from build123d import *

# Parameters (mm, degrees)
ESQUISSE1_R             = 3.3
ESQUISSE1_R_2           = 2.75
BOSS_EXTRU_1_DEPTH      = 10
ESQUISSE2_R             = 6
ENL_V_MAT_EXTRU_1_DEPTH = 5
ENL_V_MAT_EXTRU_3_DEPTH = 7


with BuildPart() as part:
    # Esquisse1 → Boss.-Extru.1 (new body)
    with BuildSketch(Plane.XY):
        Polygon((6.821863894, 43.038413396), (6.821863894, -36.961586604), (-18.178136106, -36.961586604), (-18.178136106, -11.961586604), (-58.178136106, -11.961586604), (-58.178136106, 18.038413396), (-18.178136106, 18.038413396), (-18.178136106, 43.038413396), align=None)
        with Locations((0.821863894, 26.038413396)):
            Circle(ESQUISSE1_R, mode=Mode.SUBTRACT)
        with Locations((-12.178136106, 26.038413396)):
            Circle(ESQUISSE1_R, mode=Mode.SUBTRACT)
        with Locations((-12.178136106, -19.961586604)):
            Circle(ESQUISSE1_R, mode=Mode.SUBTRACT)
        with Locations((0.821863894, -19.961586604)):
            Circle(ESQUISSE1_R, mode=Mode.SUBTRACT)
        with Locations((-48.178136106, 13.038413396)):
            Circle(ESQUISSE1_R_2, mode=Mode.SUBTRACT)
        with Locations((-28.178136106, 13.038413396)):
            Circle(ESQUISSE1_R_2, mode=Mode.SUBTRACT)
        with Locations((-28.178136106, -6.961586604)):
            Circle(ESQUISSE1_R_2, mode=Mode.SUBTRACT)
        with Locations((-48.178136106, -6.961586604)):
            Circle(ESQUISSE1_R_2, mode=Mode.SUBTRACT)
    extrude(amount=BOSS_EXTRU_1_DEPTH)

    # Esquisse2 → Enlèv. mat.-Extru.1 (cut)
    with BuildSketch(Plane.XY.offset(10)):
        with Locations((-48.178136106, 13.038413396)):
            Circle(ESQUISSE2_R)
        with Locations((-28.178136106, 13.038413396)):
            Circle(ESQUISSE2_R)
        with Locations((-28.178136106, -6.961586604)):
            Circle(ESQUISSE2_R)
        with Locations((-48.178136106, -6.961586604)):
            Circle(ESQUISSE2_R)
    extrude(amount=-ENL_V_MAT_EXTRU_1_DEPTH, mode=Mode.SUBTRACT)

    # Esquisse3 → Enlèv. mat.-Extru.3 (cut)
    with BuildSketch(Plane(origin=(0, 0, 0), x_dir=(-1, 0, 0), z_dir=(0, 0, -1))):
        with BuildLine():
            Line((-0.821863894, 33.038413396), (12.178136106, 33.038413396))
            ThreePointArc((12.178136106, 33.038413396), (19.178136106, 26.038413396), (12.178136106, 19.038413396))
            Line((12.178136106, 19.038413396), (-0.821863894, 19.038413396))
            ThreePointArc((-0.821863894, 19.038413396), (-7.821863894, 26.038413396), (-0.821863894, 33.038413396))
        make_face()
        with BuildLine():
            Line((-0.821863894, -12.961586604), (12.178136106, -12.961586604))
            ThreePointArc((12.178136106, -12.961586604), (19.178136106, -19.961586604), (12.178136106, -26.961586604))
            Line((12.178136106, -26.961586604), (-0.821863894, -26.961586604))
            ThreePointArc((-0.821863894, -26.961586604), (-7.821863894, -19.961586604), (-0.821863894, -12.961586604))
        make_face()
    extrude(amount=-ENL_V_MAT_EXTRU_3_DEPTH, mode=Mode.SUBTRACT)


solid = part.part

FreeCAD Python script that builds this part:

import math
import FreeCAD as App
import Part
import Sketcher
Q = App.Units.Quantity


def add_polygon(sketch, points):
    """Adds a closed chain of lines whose ends are joined by coincident constraints."""
    first, n = sketch.GeometryCount, len(points)
    for a, b in zip(points, points[1:] + points[:1]):
        sketch.addGeometry(Part.LineSegment(App.Vector(*a, 0), App.Vector(*b, 0)), False)
    for i in range(n):
        sketch.addConstraint(Sketcher.Constraint("Coincident", first + i, 2, first + (i + 1) % n, 1))

doc = App.newDocument("Part")
body = doc.addObject("PartDesign::Body", "Body")

# Sketch on XY plane
sketch1 = body.newObject("Sketcher::SketchObject", "Sketch")
sketch1.AttachmentSupport = (doc.getObject("XY_Plane"), [""])
sketch1.MapMode = "FlatFace"
add_polygon(sketch1, [(6.821864, -36.961587), (6.821864, 43.038413), (-18.178136, 43.038413), (-18.178136, 18.038413), (-58.178136, 18.038413), (-58.178136, -11.961587), (-18.178136, -11.961587), (-18.178136, -36.961587)])  # lines 0-7
sketch1.addGeometry(Part.Circle(App.Vector(0.821864, -19.961587, 0), App.Vector(0, 0, 1), 3.3), False)  # 8
sketch1.addGeometry(Part.Circle(App.Vector(-12.178136, -19.961587, 0), App.Vector(0, 0, 1), 3.3), False)  # 9
sketch1.addGeometry(Part.Circle(App.Vector(-28.178136, -6.961587, 0), App.Vector(0, 0, 1), 2.75), False)  # 10
sketch1.addGeometry(Part.Circle(App.Vector(-48.178136, -6.961587, 0), App.Vector(0, 0, 1), 2.75), False)  # 11
sketch1.addGeometry(Part.Circle(App.Vector(0.821864, 26.038413, 0), App.Vector(0, 0, 1), 3.3), False)  # 12
sketch1.addGeometry(Part.Circle(App.Vector(-12.178136, 26.038413, 0), App.Vector(0, 0, 1), 3.3), False)  # 13
sketch1.addGeometry(Part.Circle(App.Vector(-28.178136, 13.038413, 0), App.Vector(0, 0, 1), 2.75), False)  # 14
sketch1.addGeometry(Part.Circle(App.Vector(-48.178136, 13.038413, 0), App.Vector(0, 0, 1), 2.75), False)  # 15
sketch1.addConstraint(Sketcher.Constraint("Vertical", 0))
sketch1.addConstraint(Sketcher.Constraint("Horizontal", 1))
sketch1.addConstraint(Sketcher.Constraint("Vertical", 2))
sketch1.addConstraint(Sketcher.Constraint("Horizontal", 3))
sketch1.addConstraint(Sketcher.Constraint("Vertical", 4))
sketch1.addConstraint(Sketcher.Constraint("Horizontal", 5))
sketch1.addConstraint(Sketcher.Constraint("Vertical", 6))
sketch1.addConstraint(Sketcher.Constraint("Horizontal", 7))
sketch1.addConstraint(Sketcher.Constraint("Equal", 8, 9))
sketch1.addConstraint(Sketcher.Constraint("Equal", 10, 11))
sketch1.addConstraint(Sketcher.Constraint("Equal", 9, 12))
sketch1.addConstraint(Sketcher.Constraint("Equal", 12, 13))
sketch1.addConstraint(Sketcher.Constraint("Equal", 11, 14))
sketch1.addConstraint(Sketcher.Constraint("Equal", 14, 15))
sketch1.addConstraint(Sketcher.Constraint("Horizontal", 8, 3, 9, 3))
sketch1.addConstraint(Sketcher.Constraint("Horizontal", 10, 3, 11, 3))
sketch1.addConstraint(Sketcher.Constraint("Horizontal", 12, 3, 13, 3))
sketch1.addConstraint(Sketcher.Constraint("Horizontal", 14, 3, 15, 3))
sketch1.addConstraint(Sketcher.Constraint("Vertical", 8, 3, 12, 3))
sketch1.addConstraint(Sketcher.Constraint("Vertical", 9, 3, 13, 3))
sketch1.addConstraint(Sketcher.Constraint("Vertical", 10, 3, 14, 3))
sketch1.addConstraint(Sketcher.Constraint("Vertical", 11, 3, 15, 3))
sketch1.addConstraint(Sketcher.Constraint("Vertical", 2, 2, 5, 2))
sketch1.addConstraint(Sketcher.Constraint("Equal", 7, 2))
sketch1.addConstraint(Sketcher.Constraint("Equal", 2, 6))
sketch1.addConstraint(Sketcher.Constraint("Diameter", 8, Q("6.6 mm")))
sketch1.addConstraint(Sketcher.Constraint("Diameter", 10, Q("5.5 mm")))
sketch1.addConstraint(Sketcher.Constraint("DistanceX", 1, 2, 1, 1, Q("25 mm")))
sketch1.addConstraint(Sketcher.Constraint("DistanceX", 3, 2, 3, 1, Q("40 mm")))
sketch1.addConstraint(Sketcher.Constraint("DistanceY", 0, 1, 0, 2, Q("80 mm")))
sketch1.addConstraint(Sketcher.Constraint("DistanceX", 9, 3, 8, 3, Q("13 mm")))
sketch1.addConstraint(Sketcher.Constraint("DistanceX", 10, 3, 9, 3, Q("16 mm")))
sketch1.addConstraint(Sketcher.Constraint("DistanceY", 9, 3, 10, 3, Q("13 mm")))
sketch1.addConstraint(Sketcher.Constraint("DistanceX", 11, 3, 10, 3, Q("20 mm")))
sketch1.addConstraint(Sketcher.Constraint("DistanceY", 10, 3, 12, 3, Q("33 mm")))
sketch1.addConstraint(Sketcher.Constraint("DistanceY", 10, 3, 14, 3, Q("20 mm")))
sketch1.addConstraint(Sketcher.Constraint("DistanceX", 12, 3, 0, 2, Q("6 mm")))
sketch1.addConstraint(Sketcher.Constraint("DistanceY", 12, 3, 0, 2, Q("17 mm")))
sketch1.addConstraint(Sketcher.Constraint("DistanceX", -1, 1, 8, 3, Q("0.821864 mm")))
sketch1.addConstraint(Sketcher.Constraint("DistanceY", 8, 3, -1, 1, Q("19.961587 mm")))
pad1 = body.newObject("PartDesign::Pad", "Pad")
pad1.Profile = sketch1
pad1.Length = 10

# Sketch on XY plane
sketch2 = body.newObject("Sketcher::SketchObject", "Sketch001")
sketch2.AttachmentSupport = (doc.getObject("XY_Plane"), [""])
sketch2.MapMode = "FlatFace"
sketch2.AttachmentOffset = App.Placement(App.Vector(0, 0, 10), App.Rotation())
sketch2.addGeometry(Part.Circle(App.Vector(-48.178136, 13.038413, 0), App.Vector(0, 0, 1), 6), False)
sketch2.addGeometry(Part.Circle(App.Vector(-28.178136, 13.038413, 0), App.Vector(0, 0, 1), 6), False)
sketch2.addGeometry(Part.Circle(App.Vector(-28.178136, -6.961587, 0), App.Vector(0, 0, 1), 6), False)
sketch2.addGeometry(Part.Circle(App.Vector(-48.178136, -6.961587, 0), App.Vector(0, 0, 1), 6), False)
sketch2.addConstraint(Sketcher.Constraint("Equal", 0, 1))
sketch2.addConstraint(Sketcher.Constraint("Equal", 1, 2))
sketch2.addConstraint(Sketcher.Constraint("Equal", 2, 3))
sketch2.addConstraint(Sketcher.Constraint("Horizontal", 0, 3, 1, 3))
sketch2.addConstraint(Sketcher.Constraint("Horizontal", 2, 3, 3, 3))
sketch2.addConstraint(Sketcher.Constraint("Vertical", 1, 3, 2, 3))
sketch2.addConstraint(Sketcher.Constraint("Vertical", 0, 3, 3, 3))
sketch2.addConstraint(Sketcher.Constraint("Diameter", 0, Q("12 mm")))
sketch2.addConstraint(Sketcher.Constraint("DistanceX", 0, 3, 1, 3, Q("20 mm")))
sketch2.addConstraint(Sketcher.Constraint("DistanceY", 2, 3, 1, 3, Q("20 mm")))
sketch2.addConstraint(Sketcher.Constraint("DistanceX", 0, 3, -1, 1, Q("48.178136 mm")))
sketch2.addConstraint(Sketcher.Constraint("DistanceY", -1, 1, 0, 3, Q("13.038413 mm")))
pocket1 = body.newObject("PartDesign::Pocket", "Pocket")
pocket1.Profile = sketch2
pocket1.Length = 5

# Sketch on XY plane
sketch3 = body.newObject("Sketcher::SketchObject", "Sketch002")
sketch3.AttachmentSupport = (doc.getObject("XY_Plane"), [""])
sketch3.MapMode = "FlatFace"
sketch3.addGeometry(Part.LineSegment(App.Vector(-12.178136, 33.038413, 0), App.Vector(0.821864, 33.038413, 0)), False)
sketch3.addGeometry(Part.ArcOfCircle(Part.Circle(App.Vector(0.821864, 26.038413, 0), App.Vector(0, 0, 1), 7), math.radians(-90), math.radians(90)), False)
sketch3.addGeometry(Part.LineSegment(App.Vector(0.821864, 19.038413, 0), App.Vector(-12.178136, 19.038413, 0)), False)
sketch3.addGeometry(Part.ArcOfCircle(Part.Circle(App.Vector(-12.178136, 26.038413, 0), App.Vector(0, 0, 1), 7), math.radians(90), math.radians(270)), False)
sketch3.addGeometry(Part.LineSegment(App.Vector(-12.178136, -12.961587, 0), App.Vector(0.821864, -12.961587, 0)), False)
sketch3.addGeometry(Part.ArcOfCircle(Part.Circle(App.Vector(0.821864, -19.961587, 0), App.Vector(0, 0, 1), 7), math.radians(-90), math.radians(90)), False)
sketch3.addGeometry(Part.LineSegment(App.Vector(0.821864, -26.961587, 0), App.Vector(-12.178136, -26.961587, 0)), False)
sketch3.addGeometry(Part.ArcOfCircle(Part.Circle(App.Vector(-12.178136, -19.961587, 0), App.Vector(0, 0, 1), 7), math.radians(90), math.radians(270)), False)
sketch3.addConstraint(Sketcher.Constraint("Tangent", 0, 2, 1, 2))
sketch3.addConstraint(Sketcher.Constraint("Tangent", 1, 1, 2, 1))
sketch3.addConstraint(Sketcher.Constraint("Tangent", 2, 2, 3, 2))
sketch3.addConstraint(Sketcher.Constraint("Tangent", 3, 1, 0, 1))
sketch3.addConstraint(Sketcher.Constraint("Tangent", 4, 2, 5, 2))
sketch3.addConstraint(Sketcher.Constraint("Tangent", 5, 1, 6, 1))
sketch3.addConstraint(Sketcher.Constraint("Tangent", 6, 2, 7, 2))
sketch3.addConstraint(Sketcher.Constraint("Tangent", 7, 1, 4, 1))
sketch3.addConstraint(Sketcher.Constraint("Horizontal", 0))
sketch3.addConstraint(Sketcher.Constraint("Horizontal", 2))
sketch3.addConstraint(Sketcher.Constraint("Horizontal", 4))
sketch3.addConstraint(Sketcher.Constraint("Horizontal", 6))
sketch3.addConstraint(Sketcher.Constraint("Equal", 3, 5))
sketch3.addConstraint(Sketcher.Constraint("Vertical", 1, 3, 5, 3))
sketch3.addConstraint(Sketcher.Constraint("Vertical", 3, 3, 7, 3))
sketch3.addConstraint(Sketcher.Constraint("Radius", 1, Q("7 mm")))
sketch3.addConstraint(Sketcher.Constraint("DistanceX", 0, 1, 0, 2, Q("13 mm")))
sketch3.addConstraint(Sketcher.Constraint("DistanceY", 5, 3, 1, 3, Q("46 mm")))
sketch3.addConstraint(Sketcher.Constraint("DistanceX", -1, 1, 1, 3, Q("0.821864 mm")))
sketch3.addConstraint(Sketcher.Constraint("DistanceY", -1, 1, 1, 3, Q("26.038413 mm")))
pocket2 = body.newObject("PartDesign::Pocket", "Pocket001")
pocket2.Profile = sketch3
pocket2.Length = 7
pocket2.Reversed = True

doc.recompute()
